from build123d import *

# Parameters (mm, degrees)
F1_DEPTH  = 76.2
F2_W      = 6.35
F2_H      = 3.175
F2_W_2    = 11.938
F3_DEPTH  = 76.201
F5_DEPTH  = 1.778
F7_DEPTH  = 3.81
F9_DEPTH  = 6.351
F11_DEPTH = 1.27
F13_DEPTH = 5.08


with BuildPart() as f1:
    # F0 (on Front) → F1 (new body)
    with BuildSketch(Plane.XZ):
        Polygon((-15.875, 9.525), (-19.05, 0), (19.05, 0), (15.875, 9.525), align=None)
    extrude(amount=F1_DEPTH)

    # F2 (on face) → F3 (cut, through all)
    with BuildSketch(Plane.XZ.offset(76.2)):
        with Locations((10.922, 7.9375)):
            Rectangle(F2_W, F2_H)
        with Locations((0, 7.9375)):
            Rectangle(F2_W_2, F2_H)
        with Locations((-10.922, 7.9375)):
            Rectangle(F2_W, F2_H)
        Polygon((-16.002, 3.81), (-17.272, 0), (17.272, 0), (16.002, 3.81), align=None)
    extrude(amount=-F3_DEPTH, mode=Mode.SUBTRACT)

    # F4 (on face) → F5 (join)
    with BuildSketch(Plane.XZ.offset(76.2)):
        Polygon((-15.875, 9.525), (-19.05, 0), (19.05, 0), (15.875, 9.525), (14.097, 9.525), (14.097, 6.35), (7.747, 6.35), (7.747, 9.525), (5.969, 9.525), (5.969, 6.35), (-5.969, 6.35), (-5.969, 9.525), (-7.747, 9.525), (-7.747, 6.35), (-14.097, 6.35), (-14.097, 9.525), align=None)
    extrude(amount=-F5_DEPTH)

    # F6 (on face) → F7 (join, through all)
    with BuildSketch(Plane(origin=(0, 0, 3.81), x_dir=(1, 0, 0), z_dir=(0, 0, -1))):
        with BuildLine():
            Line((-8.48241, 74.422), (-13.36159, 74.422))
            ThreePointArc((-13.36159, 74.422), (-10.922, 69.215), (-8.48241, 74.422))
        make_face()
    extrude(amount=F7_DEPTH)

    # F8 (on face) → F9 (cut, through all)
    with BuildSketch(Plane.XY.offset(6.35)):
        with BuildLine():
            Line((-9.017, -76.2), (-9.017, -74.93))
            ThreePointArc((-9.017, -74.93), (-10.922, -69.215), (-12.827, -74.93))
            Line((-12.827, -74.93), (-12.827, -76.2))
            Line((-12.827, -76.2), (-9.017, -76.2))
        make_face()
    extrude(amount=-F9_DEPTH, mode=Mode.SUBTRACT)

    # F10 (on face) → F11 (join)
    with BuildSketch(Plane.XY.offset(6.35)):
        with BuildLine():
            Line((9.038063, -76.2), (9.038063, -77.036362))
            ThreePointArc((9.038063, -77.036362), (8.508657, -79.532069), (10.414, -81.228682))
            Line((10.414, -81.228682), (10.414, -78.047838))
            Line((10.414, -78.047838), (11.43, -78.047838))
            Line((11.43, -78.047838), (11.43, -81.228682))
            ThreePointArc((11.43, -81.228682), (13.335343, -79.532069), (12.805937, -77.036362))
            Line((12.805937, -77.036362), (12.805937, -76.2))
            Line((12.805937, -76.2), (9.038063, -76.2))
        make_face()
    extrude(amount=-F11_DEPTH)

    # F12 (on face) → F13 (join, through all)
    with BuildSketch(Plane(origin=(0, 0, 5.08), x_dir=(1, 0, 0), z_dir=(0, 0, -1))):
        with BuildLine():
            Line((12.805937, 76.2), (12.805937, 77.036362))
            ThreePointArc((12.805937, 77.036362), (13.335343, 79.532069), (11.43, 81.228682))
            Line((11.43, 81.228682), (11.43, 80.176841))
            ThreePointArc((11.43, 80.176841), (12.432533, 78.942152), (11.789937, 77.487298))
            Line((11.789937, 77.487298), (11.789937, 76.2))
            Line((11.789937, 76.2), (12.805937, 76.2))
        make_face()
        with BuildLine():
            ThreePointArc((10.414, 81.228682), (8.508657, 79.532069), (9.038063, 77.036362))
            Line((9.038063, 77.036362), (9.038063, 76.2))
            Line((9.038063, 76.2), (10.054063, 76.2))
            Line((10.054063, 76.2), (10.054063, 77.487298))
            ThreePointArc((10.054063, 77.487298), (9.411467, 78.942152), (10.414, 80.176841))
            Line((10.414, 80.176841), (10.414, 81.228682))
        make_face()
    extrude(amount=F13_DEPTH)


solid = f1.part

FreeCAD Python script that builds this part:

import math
import FreeCAD as App
import Part
import Sketcher

V = App.Vector
Q = App.Units.Quantity

doc = App.newDocument("Part")
body = doc.addObject("PartDesign::Body", "Body")

# Sketch on XZ plane
sketch1 = doc.addObject("Sketcher::SketchObject", "Sketch")
body.addObject(sketch1)
sketch1.AttachmentSupport = (doc.XZ_Plane, [""])
sketch1.MapMode = "FlatFace"
sketch1.addGeometry([
    Part.LineSegment(V(-15.875, 9.525, 0), V(-19.05, 0, 0)),
    Part.LineSegment(V(-19.05, 0, 0), V(19.05, 0, 0)),
    Part.LineSegment(V(19.05, 0, 0), V(15.875, 9.525, 0)),
    Part.LineSegment(V(15.875, 9.525, 0), V(-15.875, 9.525, 0)),
], False)
sketch1.addConstraint([
    Sketcher.Constraint("Coincident", 0, 2, 1, 1),
    Sketcher.Constraint("Coincident", 1, 2, 2, 1),
    Sketcher.Constraint("Coincident", 2, 2, 3, 1),
    Sketcher.Constraint("Coincident", 3, 2, 0, 1),
    Sketcher.Constraint("Horizontal", 1),
    Sketcher.Constraint("Horizontal", 3),
    Sketcher.Constraint("Symmetric", 0, 2, 1, 2, -1, 1),
    Sketcher.Constraint("Equal", 0, 2),
    Sketcher.Constraint("DistanceX", 1, 1, 1, 2, Q("1.5 in")),
    Sketcher.Constraint("DistanceX", 3, 2, 3, 1, Q("1.25 in")),
    Sketcher.Constraint("DistanceY", -1, 1, 2, 2, Q("0.375 in")),
])
pad1 = doc.addObject("PartDesign::Pad", "Pad")
body.addObject(pad1)
pad1.Profile = sketch1
pad1.Length = Q("3 in")

# Sketch on XZ plane
sketch2 = doc.addObject("Sketcher::SketchObject", "Sketch001")
body.addObject(sketch2)
sketch2.AttachmentSupport = (doc.XZ_Plane, [""])
sketch2.MapMode = "FlatFace"
sketch2.AttachmentOffset = App.Placement(V(0, 0, 3 * 25.4), App.Rotation())
sketch2.addGeometry([
    Part.LineSegment(V(7.747, 9.525, 0), V(7.747, 6.35, 0)),  # 0
    Part.LineSegment(V(7.747, 6.35, 0), V(14.097, 6.35, 0)),  # 1
    Part.LineSegment(V(14.097, 6.35, 0), V(14.097, 9.525, 0)),  # 2
    Part.LineSegment(V(14.097, 9.525, 0), V(7.747, 9.525, 0)),  # 3
    Part.LineSegment(V(-5.969, 9.525, 0), V(-5.969, 6.35, 0)),  # 4
    Part.LineSegment(V(-5.969, 6.35, 0), V(5.969, 6.35, 0)),  # 5
    Part.LineSegment(V(5.969, 6.35, 0), V(5.969, 9.525, 0)),  # 6
    Part.LineSegment(V(5.969, 9.525, 0), V(-5.969, 9.525, 0)),  # 7
    Part.LineSegment(V(-14.097, 9.525, 0), V(-14.097, 6.35, 0)),  # 8
    Part.LineSegment(V(-14.097, 6.35, 0), V(-7.747, 6.35, 0)),  # 9
    Part.LineSegment(V(-7.747, 6.35, 0), V(-7.747, 9.525, 0)),  # 10
    Part.LineSegment(V(-7.747, 9.525, 0), V(-14.097, 9.525, 0)),  # 11
    Part.LineSegment(V(-16.002, 3.81, 0), V(-17.272, 0, 0)),  # 12
    Part.LineSegment(V(-17.272, 0, 0), V(17.272, 0, 0)),  # 13
    Part.LineSegment(V(17.272, 0, 0), V(16.002, 3.81, 0)),  # 14
    Part.LineSegment(V(16.002, 3.81, 0), V(-16.002, 3.81, 0)),  # 15
], False)
sketch2.addConstraint([
    Sketcher.Constraint("Coincident", 0, 2, 1, 1),
    Sketcher.Constraint("Coincident", 1, 2, 2, 1),
    Sketcher.Constraint("Coincident", 2, 2, 3, 1),
    Sketcher.Constraint("Coincident", 3, 2, 0, 1),
    Sketcher.Constraint("Coincident", 4, 2, 5, 1),
    Sketcher.Constraint("Coincident", 5, 2, 6, 1),
    Sketcher.Constraint("Coincident", 6, 2, 7, 1),
    Sketcher.Constraint("Coincident", 7, 2, 4, 1),
    Sketcher.Constraint("Coincident", 8, 2, 9, 1),
    Sketcher.Constraint("Coincident", 9, 2, 10, 1),
    Sketcher.Constraint("Coincident", 10, 2, 11, 1),
    Sketcher.Constraint("Coincident", 11, 2, 8, 1),
    Sketcher.Constraint("Coincident", 12, 2, 13, 1),
    Sketcher.Constraint("Coincident", 13, 2, 14, 1),
    Sketcher.Constraint("Coincident", 14, 2, 15, 1),
    Sketcher.Constraint("Coincident", 15, 2, 12, 1),
    Sketcher.Constraint("Vertical", 0),
    Sketcher.Constraint("Horizontal", 1),
    Sketcher.Constraint("Vertical", 2),
    Sketcher.Constraint("Horizontal", 3),
    Sketcher.Constraint("Vertical", 4),
    Sketcher.Constraint("Horizontal", 5),
    Sketcher.Constraint("Vertical", 6),
    Sketcher.Constraint("Horizontal", 7),
    Sketcher.Constraint("Vertical", 8),
    Sketcher.Constraint("Horizontal", 9),
    Sketcher.Constraint("Vertical", 10),
    Sketcher.Constraint("Horizontal", 11),
    Sketcher.Constraint("Horizontal", 13),
    Sketcher.Constraint("Horizontal", 15),
    Sketcher.Constraint("Symmetric", 12, 2, 13, 2, -1, 1),
    Sketcher.Constraint("Symmetric", 1, 2, 8, 2, -2),
    Sketcher.Constraint("Symmetric", 3, 2, 10, 2, -2),
    Sketcher.Constraint("Horizontal", 1, 2, 4, 2),
    Sketcher.Constraint("Horizontal", 3, 2, 6, 2),
    Sketcher.Constraint("Equal", 12, 14),
    Sketcher.Constraint("DistanceX", 1, 1, 1, 2, Q("0.25 in")),
    Sketcher.Constraint("DistanceX", 5, 1, 5, 2, Q("0.47 in")),
    Sketcher.Constraint("DistanceX", 13, 1, 13, 2, Q("1.36 in")),
    Sketcher.Constraint("DistanceX", 15, 2, 15, 1, Q("1.26 in")),
    Sketcher.Constraint("DistanceY", 14, 2, 1, 2, Q("0.1 in")),
    Sketcher.Constraint("DistanceY", 0, 2, 0, 1, Q("0.125 in")),
    Sketcher.Constraint("DistanceY", -1, 1, 0, 2, Q("0.25 in")),
    Sketcher.Constraint("DistanceX", 4, 2, 0, 2, Q("0.54 in")),
    Sketcher.Constraint("DistanceX", 8, 2, 4, 2, Q("0.32 in")),
])
pocket1 = doc.addObject("PartDesign::Pocket", "Pocket")
body.addObject(pocket1)
pocket1.Profile = sketch2
pocket1.Type = "ThroughAll"

# Sketch on XZ plane
sketch3 = doc.addObject("Sketcher::SketchObject", "Sketch002")
body.addObject(sketch3)
sketch3.AttachmentSupport = (doc.XZ_Plane, [""])
sketch3.MapMode = "FlatFace"
sketch3.AttachmentOffset = App.Placement(V(0, 0, 3 * 25.4), App.Rotation())
sketch3.addGeometry([
    Part.LineSegment(V(-15.875, 9.525, 0), V(-19.05, 0, 0)),  # 0
    Part.LineSegment(V(-19.05, 0, 0), V(19.05, 0, 0)),  # 1
    Part.LineSegment(V(19.05, 0, 0), V(15.875, 9.525, 0)),  # 2
    Part.LineSegment(V(15.875, 9.525, 0), V(14.097, 9.525, 0)),  # 3
    Part.LineSegment(V(14.097, 9.525, 0), V(14.097, 6.35, 0)),  # 4
    Part.LineSegment(V(14.097, 6.35, 0), V(7.747, 6.35, 0)),  # 5
    Part.LineSegment(V(7.747, 6.35, 0), V(7.747, 9.525, 0)),  # 6
    Part.LineSegment(V(7.747, 9.525, 0), V(5.969, 9.525, 0)),  # 7
    Part.LineSegment(V(5.969, 9.525, 0), V(5.969, 6.35, 0)),  # 8
    Part.LineSegment(V(5.969, 6.35, 0), V(-5.969, 6.35, 0)),  # 9
    Part.LineSegment(V(-5.969, 6.35, 0), V(-5.969, 9.525, 0)),  # 10
    Part.LineSegment(V(-5.969, 9.525, 0), V(-7.747, 9.525, 0)),  # 11
    Part.LineSegment(V(-7.747, 9.525, 0), V(-7.747, 6.35, 0)),  # 12
    Part.LineSegment(V(-7.747, 6.35, 0), V(-14.097, 6.35, 0)),  # 13
    Part.LineSegment(V(-14.097, 6.35, 0), V(-14.097, 9.525, 0)),  # 14
    Part.LineSegment(V(-14.097, 9.525, 0), V(-15.875, 9.525, 0)),  # 15
], False)
sketch3.addConstraint([
    Sketcher.Constraint("Coincident", 0, 2, 1, 1),
    Sketcher.Constraint("Coincident", 1, 2, 2, 1),
    Sketcher.Constraint("Coincident", 2, 2, 3, 1),
    Sketcher.Constraint("Coincident", 3, 2, 4, 1),
    Sketcher.Constraint("Coincident", 4, 2, 5, 1),
    Sketcher.Constraint("Coincident", 5, 2, 6, 1),
    Sketcher.Constraint("Coincident", 6, 2, 7, 1),
    Sketcher.Constraint("Coincident", 7, 2, 8, 1),
    Sketcher.Constraint("Coincident", 8, 2, 9, 1),
    Sketcher.Constraint("Coincident", 9, 2, 10, 1),
    Sketcher.Constraint("Coincident", 10, 2, 11, 1),
    Sketcher.Constraint("Coincident", 11, 2, 12, 1),
    Sketcher.Constraint("Coincident", 12, 2, 13, 1),
    Sketcher.Constraint("Coincident", 13, 2, 14, 1),
    Sketcher.Constraint("Coincident", 14, 2, 15, 1),
    Sketcher.Constraint("Coincident", 15, 2, 0, 1),
    Sketcher.Constraint("Horizontal", 1),
    Sketcher.Constraint("Horizontal", 3),
    Sketcher.Constraint("Vertical", 4),
    Sketcher.Constraint("Horizontal", 5),
    Sketcher.Constraint("Vertical", 6),
    Sketcher.Constraint("Horizontal", 7),
    Sketcher.Constraint("Vertical", 8),
    Sketcher.Constraint("Horizontal", 9),
    Sketcher.Constraint("Vertical", 10),
    Sketcher.Constraint("Horizontal", 11),
    Sketcher.Constraint("Vertical", 12),
    Sketcher.Constraint("Horizontal", 13),
    Sketcher.Constraint("Vertical", 14),
    Sketcher.Constraint("Horizontal", 15),
    Sketcher.Constraint("Symmetric", 0, 2, 1, 2, -1, 1),
    Sketcher.Constraint("Symmetric", 7, 2, 10, 2, -2),
    Sketcher.Constraint("Symmetric", 5, 2, 12, 2, -2),
    Sketcher.Constraint("Symmetric", 3, 2, 14, 2, -2),
    Sketcher.Constraint("Horizontal", 3, 2, 6, 2),
    Sketcher.Constraint("Horizontal", 5, 2, 8, 2),
    Sketcher.Constraint("Equal", 3, 7),
    Sketcher.Constraint("Equal", 11, 15),
    Sketcher.Constraint("DistanceX", 1, 1, 1, 2, Q("1.5 in")),
    Sketcher.Constraint("DistanceX", 3, 2, 3, 1, Q("0.07 in")),
    Sketcher.Constraint("DistanceX", 5, 2, 5, 1, Q("0.25 in")),
    Sketcher.Constraint("DistanceX", 9, 2, 9, 1, Q("0.47 in")),
    Sketcher.Constraint("DistanceY", 4, 2, 4, 1, Q("0.125 in")),
    Sketcher.Constraint("DistanceY", -1, 1, 4, 2, Q("0.25 in")),
])
pad2 = doc.addObject("PartDesign::Pad", "Pad001")
body.addObject(pad2)
pad2.Profile = sketch3
pad2.Length = Q("0.07 in")
pad2.Reversed = True

# Sketch on XY plane
sketch4 = doc.addObject("Sketcher::SketchObject", "Sketch003")
body.addObject(sketch4)
sketch4.AttachmentSupport = (doc.XY_Plane, [""])
sketch4.MapMode = "FlatFace"
sketch4.AttachmentOffset = App.Placement(V(0, 0, 0.15 * 25.4), App.Rotation())
sketch4.addGeometry([
    Part.LineSegment(V(-8.48241, -74.422, 0), V(-13.36159, -74.422, 0)),
    Part.ArcOfCircle(Part.Circle(V(-10.922, -72.39, 0), V(0, 0, 1), 3.175), math.radians(-39.791826), math.radians(219.791826)),
], False)
sketch4.addConstraint([
    Sketcher.Constraint("Coincident", 0, 1, 1, 1),
    Sketcher.Constraint("Coincident", 1, 2, 0, 2),
    Sketcher.Constraint("Horizontal", 0),
    Sketcher.Constraint("Radius", 1, Q("0.125 in")),
    Sketcher.Constraint("DistanceX", 1, 3, -1, 1, Q("0.43 in")),
    Sketcher.Constraint("DistanceY", 1, 3, -1, 1, Q("2.85 in")),
    Sketcher.Constraint("DistanceY", 0, 1, -1, 1, Q("2.93 in")),
])
pad3 = doc.addObject("PartDesign::Pad", "Pad002")
body.addObject(pad3)
pad3.Profile = sketch4
pad3.Length = Q("0.15 in")
pad3.Reversed = True

# Sketch on XY plane
sketch5 = doc.addObject("Sketcher::SketchObject", "Sketch004")
body.addObject(sketch5)
sketch5.AttachmentSupport = (doc.XY_Plane, [""])
sketch5.MapMode = "FlatFace"
sketch5.AttachmentOffset = App.Placement(V(0, 0, 0.25 * 25.4), App.Rotation())
sketch5.addGeometry([
    Part.LineSegment(V(-9.017, -76.2, 0), V(-9.017, -74.93, 0)),
    Part.ArcOfCircle(Part.Circle(V(-10.922, -72.39, 0), V(0, 0, 1), 3.175), math.radians(-53.130102), math.radians(233.130102)),
    Part.LineSegment(V(-12.827, -74.93, 0), V(-12.827, -76.2, 0)),
    Part.LineSegment(V(-12.827, -76.2, 0), V(-9.017, -76.2, 0)),
], False)
sketch5.addConstraint([
    Sketcher.Constraint("Coincident", 0, 2, 1, 1),
    Sketcher.Constraint("Coincident", 1, 2, 2, 1),
    Sketcher.Constraint("Coincident", 2, 2, 3, 1),
    Sketcher.Constraint("Coincident", 3, 2, 0, 1),
    Sketcher.Constraint("Vertical", 0),
    Sketcher.Constraint("Vertical", 2),
    Sketcher.Constraint("Horizontal", 3),
    Sketcher.Constraint("Horizontal", 0, 2, 1, 2),
    Sketcher.Constraint("DistanceY", 2, 2, -1, 1, Q("3 in")),
    Sketcher.Constraint("Radius", 1, Q("0.125 in")),
    Sketcher.Constraint("DistanceX", 3, 1, 3, 2, Q("0.15 in")),
    Sketcher.Constraint("DistanceY", 0, 1, 0, 2, Q("0.05 in")),
    Sketcher.Constraint("DistanceX", 1, 3, -1, 1, Q("0.43 in")),
])
pocket2 = doc.addObject("PartDesign::Pocket", "Pocket001")
body.addObject(pocket2)
pocket2.Profile = sketch5
pocket2.Type = "ThroughAll"

# Sketch on XY plane
sketch6 = doc.addObject("Sketcher::SketchObject", "Sketch005")
body.addObject(sketch6)
sketch6.AttachmentSupport = (doc.XY_Plane, [""])
sketch6.MapMode = "FlatFace"
sketch6.AttachmentOffset = App.Placement(V(0, 0, 0.25 * 25.4), App.Rotation())
sketch6.addGeometry([
    Part.LineSegment(V(9.038063, -76.2, 0), V(9.038063, -77.036362, 0)),  # 0
    Part.ArcOfCircle(Part.Circle(V(10.922001, -78.74, 0), V(0, 0, 1), 2.540001), math.radians(137.877093), math.radians(258.463012)),  # 1
    Part.LineSegment(V(10.414, -81.228682, 0), V(10.414, -78.047838, 0)),  # 2
    Part.LineSegment(V(10.414, -78.047838, 0), V(11.43, -78.047838, 0)),  # 3
    Part.LineSegment(V(11.43, -78.047838, 0), V(11.43, -81.228682, 0)),  # 4
    Part.ArcOfCircle(Part.Circle(V(10.921999, -78.74, 0), V(0, 0, 1), 2.540001), math.radians(-78.463012), math.radians(42.122907)),  # 5
    Part.LineSegment(V(12.805937, -77.036362, 0), V(12.805937, -76.2, 0)),  # 6
    Part.LineSegment(V(12.805937, -76.2, 0), V(9.038063, -76.2, 0)),  # 7
], False)
sketch6.addConstraint([
    Sketcher.Constraint("Coincident", 0, 2, 1, 1),
    Sketcher.Constraint("Coincident", 1, 2, 2, 1),
    Sketcher.Constraint("Coincident", 2, 2, 3, 1),
    Sketcher.Constraint("Coincident", 3, 2, 4, 1),
    Sketcher.Constraint("Coincident", 4, 2, 5, 1),
    Sketcher.Constraint("Coincident", 5, 2, 6, 1),
    Sketcher.Constraint("Coincident", 6, 2, 7, 1),
    Sketcher.Constraint("Coincident", 7, 2, 0, 1),
    Sketcher.Constraint("Vertical", 0),
    Sketcher.Constraint("Vertical", 2),
    Sketcher.Constraint("Horizontal", 3),
    Sketcher.Constraint("Vertical", 4),
    Sketcher.Constraint("Vertical", 6),
    Sketcher.Constraint("Horizontal", 7),
    Sketcher.Constraint("Coincident", 5, 3, 1, 3),
    Sketcher.Constraint("Equal", 1, 5),
    Sketcher.Constraint("Horizontal", 1, 2, 4, 2),
    Sketcher.Constraint("Horizontal", 0, 2, 5, 2),
    Sketcher.Constraint("Radius", 1, Q("0.1 in")),
    Sketcher.Constraint("DistanceY", 6, 2, -1, 1, Q("3 in")),
    Sketcher.Constraint("DistanceX", 3, 1, 3, 2, Q("0.04 in")),
    Sketcher.Constraint("DistanceY", 1, 3, -1, 1, Q("3.1 in")),
    Sketcher.Constraint("DistanceX", -1, 1, 1, 3, Q("0.4300001 in")),
    Sketcher.Constraint("DistanceY", 0, 2, 0, 1, 0.836362),
    Sketcher.Constraint("DistanceY", 2, 1, 2, 2, 3.180844),
])
pad4 = doc.addObject("PartDesign::Pad", "Pad003")
body.addObject(pad4)
pad4.Profile = sketch6
pad4.Length = Q("0.05 in")
pad4.Reversed = True

# Sketch on XY plane
sketch7 = doc.addObject("Sketcher::SketchObject", "Sketch006")
body.addObject(sketch7)
sketch7.AttachmentSupport = (doc.XY_Plane, [""])
sketch7.MapMode = "FlatFace"
sketch7.AttachmentOffset = App.Placement(V(0, 0, 0.2 * 25.4), App.Rotation())
sketch7.addGeometry([
    Part.LineSegment(V(12.805937, -76.2, 0), V(12.805937, -77.036362, 0)),  # 0
    Part.ArcOfCircle(Part.Circle(V(10.921999, -78.74, 0), V(0, 0, 1), 2.540001), math.radians(-78.463012), math.radians(42.122907)),  # 1
    Part.LineSegment(V(11.43, -81.228682, 0), V(11.43, -80.176841, 0)),  # 2
    Part.ArcOfCircle(Part.Circle(V(10.921999, -78.74, 0), V(0, 0, 1), 1.524), math.radians(-70.52876), math.radians(55.283747)),  # 3
    Part.LineSegment(V(11.789937, -77.487298, 0), V(11.789937, -76.2, 0)),  # 4
    Part.LineSegment(V(11.789937, -76.2, 0), V(12.805937, -76.2, 0)),  # 5
    Part.ArcOfCircle(Part.Circle(V(10.922001, -78.74, 0), V(0, 0, 1), 2.540001), math.radians(137.877093), math.radians(258.463012)),  # 6
    Part.LineSegment(V(9.038063, -77.036362, 0), V(9.038063, -76.2, 0)),  # 7
    Part.LineSegment(V(9.038063, -76.2, 0), V(10.054063, -76.2, 0)),  # 8
    Part.LineSegment(V(10.054063, -76.2, 0), V(10.054063, -77.487298, 0)),  # 9
    Part.ArcOfCircle(Part.Circle(V(10.922001, -78.74, 0), V(0, 0, 1), 1.524), math.radians(124.716253), math.radians(250.52876)),  # 10
    Part.LineSegment(V(10.414, -80.176841, 0), V(10.414, -81.228682, 0)),  # 11
], False)
sketch7.addConstraint([
    Sketcher.Constraint("Coincident", 0, 2, 1, 2),
    Sketcher.Constraint("Coincident", 1, 1, 2, 1),
    Sketcher.Constraint("Coincident", 2, 2, 3, 1),
    Sketcher.Constraint("Coincident", 3, 2, 4, 1),
    Sketcher.Constraint("Coincident", 4, 2, 5, 1),
    Sketcher.Constraint("Coincident", 5, 2, 0, 1),
    Sketcher.Constraint("Coincident", 6, 1, 7, 1),
    Sketcher.Constraint("Coincident", 7, 2, 8, 1),
    Sketcher.Constraint("Coincident", 8, 2, 9, 1),
    Sketcher.Constraint("Coincident", 9, 2, 10, 1),
    Sketcher.Constraint("Coincident", 10, 2, 11, 1),
    Sketcher.Constraint("Coincident", 11, 2, 6, 2),
    Sketcher.Constraint("Vertical", 0),
    Sketcher.Constraint("Vertical", 2),
    Sketcher.Constraint("Vertical", 4),
    Sketcher.Constraint("Horizontal", 5),
    Sketcher.Constraint("Vertical", 7),
    Sketcher.Constraint("Horizontal", 8),
    Sketcher.Constraint("Vertical", 9),
    Sketcher.Constraint("Vertical", 11),
    Sketcher.Constraint("Coincident", 3, 3, 1, 3),
    Sketcher.Constraint("Coincident", 6, 3, 1, 3),
    Sketcher.Constraint("Coincident", 10, 3, 1, 3),
    Sketcher.Constraint("Equal", 1, 6),
    Sketcher.Constraint("Equal", 3, 10),
    Sketcher.Constraint("Horizontal", 0, 2, 6, 1),
    Sketcher.Constraint("Horizontal", 5, 2, 7, 2),
    Sketcher.Constraint("Horizontal", 3, 2, 9, 2),
    Sketcher.Constraint("Horizontal", 2, 2, 10, 2),
    Sketcher.Constraint("Radius", 1, Q("0.1 in")),
    Sketcher.Constraint("Radius", 3, Q("0.06 in")),
    Sketcher.Constraint("DistanceY", 4, 2, -1, 1, Q("3 in")),
    Sketcher.Constraint("DistanceX", 5, 1, 5, 2, Q("0.04 in")),
    Sketcher.Constraint("DistanceY", 1, 3, -1, 1, Q("3.1 in")),
    Sketcher.Constraint("DistanceX", -1, 1, 1, 3, Q("0.4299999 in")),
    Sketcher.Constraint("DistanceX", -1, 1, 1, 1, Q("0.45 in")),
    Sketcher.Constraint("DistanceY", 0, 2, 0, 1, 0.836362),
])
pad5 = doc.addObject("PartDesign::Pad", "Pad004")
body.addObject(pad5)
pad5.Profile = sketch7
pad5.Length = Q("0.2 in")
pad5.Reversed = True

doc.recompute()
